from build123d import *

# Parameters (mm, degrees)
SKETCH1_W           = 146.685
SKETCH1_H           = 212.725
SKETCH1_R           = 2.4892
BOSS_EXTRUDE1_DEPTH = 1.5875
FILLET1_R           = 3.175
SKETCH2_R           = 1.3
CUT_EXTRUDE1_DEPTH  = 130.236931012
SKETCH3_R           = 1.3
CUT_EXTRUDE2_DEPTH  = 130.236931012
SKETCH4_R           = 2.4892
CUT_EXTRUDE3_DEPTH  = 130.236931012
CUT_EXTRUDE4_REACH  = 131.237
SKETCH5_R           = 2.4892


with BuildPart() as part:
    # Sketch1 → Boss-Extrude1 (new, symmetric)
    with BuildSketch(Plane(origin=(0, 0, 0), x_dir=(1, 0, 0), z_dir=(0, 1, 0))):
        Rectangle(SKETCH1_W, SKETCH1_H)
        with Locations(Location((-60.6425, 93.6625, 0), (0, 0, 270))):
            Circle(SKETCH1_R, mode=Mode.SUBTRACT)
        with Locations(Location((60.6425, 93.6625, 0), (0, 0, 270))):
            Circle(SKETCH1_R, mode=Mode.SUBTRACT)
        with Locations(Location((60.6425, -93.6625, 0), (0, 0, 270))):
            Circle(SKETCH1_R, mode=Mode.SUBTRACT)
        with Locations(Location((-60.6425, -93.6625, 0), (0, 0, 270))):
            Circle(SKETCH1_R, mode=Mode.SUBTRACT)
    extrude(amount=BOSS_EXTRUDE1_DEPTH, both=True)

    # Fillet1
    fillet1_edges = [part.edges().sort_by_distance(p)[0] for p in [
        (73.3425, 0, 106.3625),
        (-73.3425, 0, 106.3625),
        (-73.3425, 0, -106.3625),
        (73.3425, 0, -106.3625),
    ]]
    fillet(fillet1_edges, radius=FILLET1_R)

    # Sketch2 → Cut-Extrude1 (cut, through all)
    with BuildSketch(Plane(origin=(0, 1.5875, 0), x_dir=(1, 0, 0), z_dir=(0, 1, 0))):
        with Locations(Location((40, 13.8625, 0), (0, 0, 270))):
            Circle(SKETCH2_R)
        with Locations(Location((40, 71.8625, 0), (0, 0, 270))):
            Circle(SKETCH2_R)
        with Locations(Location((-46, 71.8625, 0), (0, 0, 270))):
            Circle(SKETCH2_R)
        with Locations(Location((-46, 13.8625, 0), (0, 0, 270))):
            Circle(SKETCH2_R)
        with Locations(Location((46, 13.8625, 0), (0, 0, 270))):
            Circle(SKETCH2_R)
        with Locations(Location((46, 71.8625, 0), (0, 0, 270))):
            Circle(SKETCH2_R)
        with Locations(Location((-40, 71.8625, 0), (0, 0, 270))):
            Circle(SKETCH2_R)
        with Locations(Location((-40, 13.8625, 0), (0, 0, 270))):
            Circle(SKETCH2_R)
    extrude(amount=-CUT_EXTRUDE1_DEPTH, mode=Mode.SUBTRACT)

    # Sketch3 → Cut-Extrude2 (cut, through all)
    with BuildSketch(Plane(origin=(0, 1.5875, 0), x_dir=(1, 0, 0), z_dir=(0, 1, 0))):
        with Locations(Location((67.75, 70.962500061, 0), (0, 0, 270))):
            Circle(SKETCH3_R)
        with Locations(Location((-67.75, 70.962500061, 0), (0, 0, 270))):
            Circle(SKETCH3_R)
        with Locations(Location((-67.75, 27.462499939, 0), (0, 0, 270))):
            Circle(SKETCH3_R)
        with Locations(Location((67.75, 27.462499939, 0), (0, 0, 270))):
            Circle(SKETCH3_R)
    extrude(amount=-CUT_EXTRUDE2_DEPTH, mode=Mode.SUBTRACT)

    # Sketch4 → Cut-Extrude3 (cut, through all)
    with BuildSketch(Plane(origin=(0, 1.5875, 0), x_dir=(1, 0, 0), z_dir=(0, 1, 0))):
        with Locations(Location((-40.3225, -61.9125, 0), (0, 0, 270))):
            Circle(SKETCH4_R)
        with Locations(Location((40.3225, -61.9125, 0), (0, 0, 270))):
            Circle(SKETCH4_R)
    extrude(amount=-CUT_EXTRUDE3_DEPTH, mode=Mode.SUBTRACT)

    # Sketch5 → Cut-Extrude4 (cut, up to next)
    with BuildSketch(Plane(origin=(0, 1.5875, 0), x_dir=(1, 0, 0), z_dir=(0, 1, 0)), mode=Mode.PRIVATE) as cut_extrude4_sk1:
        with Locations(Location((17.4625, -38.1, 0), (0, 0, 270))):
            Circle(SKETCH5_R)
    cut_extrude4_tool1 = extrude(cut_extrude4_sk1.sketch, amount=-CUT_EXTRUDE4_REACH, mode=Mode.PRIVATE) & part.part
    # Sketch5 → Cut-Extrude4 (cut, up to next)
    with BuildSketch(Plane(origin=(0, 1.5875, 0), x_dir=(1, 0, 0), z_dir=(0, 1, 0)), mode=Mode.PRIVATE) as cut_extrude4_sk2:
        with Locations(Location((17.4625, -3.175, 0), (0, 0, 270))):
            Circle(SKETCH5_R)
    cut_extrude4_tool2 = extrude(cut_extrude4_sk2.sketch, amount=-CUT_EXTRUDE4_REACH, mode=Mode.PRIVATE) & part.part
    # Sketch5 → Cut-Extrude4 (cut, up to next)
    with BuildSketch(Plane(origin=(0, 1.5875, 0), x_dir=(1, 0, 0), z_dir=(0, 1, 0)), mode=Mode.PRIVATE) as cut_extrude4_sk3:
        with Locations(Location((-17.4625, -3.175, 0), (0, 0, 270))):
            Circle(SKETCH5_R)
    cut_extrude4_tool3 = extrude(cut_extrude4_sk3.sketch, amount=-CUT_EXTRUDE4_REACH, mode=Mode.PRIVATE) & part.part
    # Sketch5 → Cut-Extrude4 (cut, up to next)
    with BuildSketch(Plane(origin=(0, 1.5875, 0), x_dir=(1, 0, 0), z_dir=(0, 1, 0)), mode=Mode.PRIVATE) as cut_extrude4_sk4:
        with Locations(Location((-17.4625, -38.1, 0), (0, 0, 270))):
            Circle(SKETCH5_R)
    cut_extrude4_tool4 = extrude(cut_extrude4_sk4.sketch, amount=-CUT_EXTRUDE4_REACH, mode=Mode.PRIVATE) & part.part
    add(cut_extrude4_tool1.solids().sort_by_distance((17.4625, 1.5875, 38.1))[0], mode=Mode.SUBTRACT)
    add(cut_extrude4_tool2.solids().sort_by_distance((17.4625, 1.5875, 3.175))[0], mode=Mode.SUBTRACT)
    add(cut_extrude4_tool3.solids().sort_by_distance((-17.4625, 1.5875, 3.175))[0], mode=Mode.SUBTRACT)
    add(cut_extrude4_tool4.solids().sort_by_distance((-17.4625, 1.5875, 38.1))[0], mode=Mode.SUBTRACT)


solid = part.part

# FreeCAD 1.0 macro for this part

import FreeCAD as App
import Part
import Sketcher
Q = App.Units.Quantity


def edges_at(feature, points):
    """Names of the edges that pass closest to the given points."""
    edges = feature.Shape.Edges
    near = lambda p: min(range(len(edges)), key=lambda i: edges[i].distToShape(Part.Vertex(*p))[0])
    return sorted({f"Edge{near(p) + 1}" for p in points})


def add_polygon(sketch, points):
    """Adds a closed chain of lines whose ends are joined by coincident constraints."""
    first, n = sketch.GeometryCount, len(points)
    for a, b in zip(points, points[1:] + points[:1]):
        sketch.addGeometry(Part.LineSegment(App.Vector(*a, 0), App.Vector(*b, 0)), False)
    for i in range(n):
        sketch.addConstraint(Sketcher.Constraint("Coincident", first + i, 2, first + (i + 1) % n, 1))

doc = App.newDocument("Part")
body = doc.addObject("PartDesign::Body", "Body")

# Sketch on XZ plane
sketch1 = body.newObject("Sketcher::SketchObject", "Sketch")
sketch1.AttachmentSupport = (doc.getObject("XZ_Plane"), [""])
sketch1.MapMode = "FlatFace"
add_polygon(sketch1, [(-73.3425, -106.3625), (-73.3425, 106.3625), (73.3425, 106.3625), (73.3425, -106.3625)])  # lines 0-3
sketch1.addGeometry(Part.Circle(App.Vector(-60.6425, 93.6625, 0), App.Vector(0, 0, 1), 2.4892), False)  # 4
sketch1.addGeometry(Part.Circle(App.Vector(60.6425, 93.6625, 0), App.Vector(0, 0, 1), 2.4892), False)  # 5
sketch1.addGeometry(Part.Circle(App.Vector(-60.6425, -93.6625, 0), App.Vector(0, 0, 1), 2.4892), False)  # 6
sketch1.addGeometry(Part.Circle(App.Vector(60.6425, -93.6625, 0), App.Vector(0, 0, 1), 2.4892), False)  # 7
sketch1.addConstraint([
    Sketcher.Constraint("Vertical", 0),
    Sketcher.Constraint("Horizontal", 1),
    Sketcher.Constraint("Vertical", 2),
    Sketcher.Constraint("Horizontal", 3),
    Sketcher.Constraint("Equal", 4, 5),
    Sketcher.Constraint("Equal", 5, 6),
    Sketcher.Constraint("Equal", 6, 7),
    Sketcher.Constraint("Symmetric", 5, 3, 6, 3, -1, 1),
    Sketcher.Constraint("Symmetric", 4, 3, 7, 3, -1, 1),
    Sketcher.Constraint("Symmetric", 0, 2, 2, 2, -1, 1),
    Sketcher.Constraint("Symmetric", 4, 3, 5, 3, -2),
    Sketcher.Constraint("Diameter", 4, Q("0.196 in")),
    Sketcher.Constraint("DistanceX", 0, 2, 4, 3, Q("0.5 in")),
    Sketcher.Constraint("DistanceY", 4, 3, 0, 2, Q("0.5 in")),
    Sketcher.Constraint("DistanceX", 1, 1, 1, 2, Q("5.775 in")),
    Sketcher.Constraint("DistanceY", 0, 1, 0, 2, Q("8.375 in")),
])
pad1 = body.newObject("PartDesign::Pad", "Pad")
pad1.Profile = sketch1
pad1.Length = Q("0.125 in")
pad1.Midplane = True
doc.recompute()

fillet = body.newObject("PartDesign::Fillet", "Fillet")
fillet.Base = (pad1, edges_at(pad1, [
    (73.343, 0, 106.362),
    (-73.343, 0, 106.362),
    (-73.343, 0, -106.362),
    (73.343, 0, -106.362),
]))
fillet.Radius = Q("0.125 in")

# Sketch on XZ plane
sketch2 = body.newObject("Sketcher::SketchObject", "Sketch001")
sketch2.AttachmentSupport = (doc.getObject("XZ_Plane"), [""])
sketch2.MapMode = "FlatFace"
sketch2.AttachmentOffset = App.Placement(App.Vector(0, 0, -0.0625 * 25.4), App.Rotation())
sketch2.addGeometry([
    Part.Circle(App.Vector(40, -13.8625, 0), App.Vector(0, 0, 1), 1.3),  # 0
    Part.Circle(App.Vector(40, -71.8625, 0), App.Vector(0, 0, 1), 1.3),  # 1
    Part.Circle(App.Vector(-46, -71.8625, 0), App.Vector(0, 0, 1), 1.3),  # 2
    Part.Circle(App.Vector(-46, -13.8625, 0), App.Vector(0, 0, 1), 1.3),  # 3
    Part.Circle(App.Vector(46, -13.8625, 0), App.Vector(0, 0, 1), 1.3),  # 4
    Part.Circle(App.Vector(46, -71.8625, 0), App.Vector(0, 0, 1), 1.3),  # 5
    Part.Circle(App.Vector(-40, -71.8625, 0), App.Vector(0, 0, 1), 1.3),  # 6
    Part.Circle(App.Vector(-40, -13.8625, 0), App.Vector(0, 0, 1), 1.3),  # 7
], False)
sketch2.addConstraint([
    Sketcher.Constraint("Equal", 0, 1),
    Sketcher.Constraint("Equal", 1, 2),
    Sketcher.Constraint("Equal", 2, 3),
    Sketcher.Constraint("Equal", 3, 4),
    Sketcher.Constraint("Equal", 4, 5),
    Sketcher.Constraint("Equal", 5, 6),
    Sketcher.Constraint("Equal", 6, 7),
    Sketcher.Constraint("Symmetric", 3, 3, 4, 3, -2),
    Sketcher.Constraint("Symmetric", 2, 3, 5, 3, -2),
    Sketcher.Constraint("Symmetric", 1, 3, 6, 3, -2),
    Sketcher.Constraint("Symmetric", 0, 3, 7, 3, -2),
    Sketcher.Constraint("Horizontal", 1, 3, 2, 3),
    Sketcher.Constraint("Horizontal", 0, 3, 3, 3),
    Sketcher.Constraint("Vertical", 0, 3, 1, 3),
    Sketcher.Constraint("Vertical", 2, 3, 3, 3),
    Sketcher.Constraint("Diameter", 0, Q("2.6 mm")),
    Sketcher.Constraint("DistanceX", -1, 1, 0, 3, Q("40 mm")),
    Sketcher.Constraint("DistanceY", 0, 3, -1, 1, Q("13.8625 mm")),
    Sketcher.Constraint("DistanceY", 1, 3, -1, 1, Q("71.8625 mm")),
    Sketcher.Constraint("DistanceX", 2, 3, -1, 1, Q("46 mm")),
])
pocket1 = body.newObject("PartDesign::Pocket", "Pocket")
pocket1.Profile = sketch2
pocket1.Type = "ThroughAll"
pocket1.Reversed = True

# Sketch on XZ plane
sketch3 = body.newObject("Sketcher::SketchObject", "Sketch002")
sketch3.AttachmentSupport = (doc.getObject("XZ_Plane"), [""])
sketch3.MapMode = "FlatFace"
sketch3.AttachmentOffset = App.Placement(App.Vector(0, 0, -0.0625 * 25.4), App.Rotation())
sketch3.addGeometry([
    Part.Circle(App.Vector(67.75, -70.9625, 0), App.Vector(0, 0, 1), 1.3),
    Part.Circle(App.Vector(-67.75, -70.9625, 0), App.Vector(0, 0, 1), 1.3),
    Part.Circle(App.Vector(-67.75, -27.4625, 0), App.Vector(0, 0, 1), 1.3),
    Part.Circle(App.Vector(67.75, -27.4625, 0), App.Vector(0, 0, 1), 1.3),
], False)
sketch3.addConstraint([
    Sketcher.Constraint("Equal", 0, 1),
    Sketcher.Constraint("Equal", 1, 2),
    Sketcher.Constraint("Equal", 2, 3),
    Sketcher.Constraint("Symmetric", 0, 3, 1, 3, -2),
    Sketcher.Constraint("Symmetric", 2, 3, 3, 3, -2),
    Sketcher.Constraint("Vertical", 1, 3, 2, 3),
    Sketcher.Constraint("Diameter", 0, Q("2.6 mm")),
    Sketcher.Constraint("DistanceX", -1, 1, 0, 3, Q("67.75 mm")),
    Sketcher.Constraint("DistanceY", 0, 3, -1, 1, Q("70.9625 mm")),
    Sketcher.Constraint("DistanceY", 2, 3, -1, 1, Q("27.4625 mm")),
])
pocket2 = body.newObject("PartDesign::Pocket", "Pocket001")
pocket2.Profile = sketch3
pocket2.Type = "ThroughAll"
pocket2.Reversed = True

# Sketch on XZ plane
sketch4 = body.newObject("Sketcher::SketchObject", "Sketch003")
sketch4.AttachmentSupport = (doc.getObject("XZ_Plane"), [""])
sketch4.MapMode = "FlatFace"
sketch4.AttachmentOffset = App.Placement(App.Vector(0, 0, -0.0625 * 25.4), App.Rotation())
sketch4.addGeometry([
    Part.Circle(App.Vector(-40.3225, 61.9125, 0), App.Vector(0, 0, 1), 2.4892),
    Part.Circle(App.Vector(40.3225, 61.9125, 0), App.Vector(0, 0, 1), 2.4892),
], False)
sketch4.addConstraint([
    Sketcher.Constraint("Equal", 0, 1),
    Sketcher.Constraint("Symmetric", 0, 3, 1, 3, -2),
    Sketcher.Constraint("Diameter", 0, Q("0.196 in")),
    Sketcher.Constraint("DistanceY", -1, 1, 0, 3, Q("2.4375 in")),
    Sketcher.Constraint("DistanceX", 0, 3, 1, 3, Q("3.175 in")),
])
pocket3 = body.newObject("PartDesign::Pocket", "Pocket002")
pocket3.Profile = sketch4
pocket3.Type = "ThroughAll"
pocket3.Reversed = True

# Sketch on XZ plane
sketch5 = body.newObject("Sketcher::SketchObject", "Sketch004")
sketch5.AttachmentSupport = (doc.getObject("XZ_Plane"), [""])
sketch5.MapMode = "FlatFace"
sketch5.AttachmentOffset = App.Placement(App.Vector(0, 0, -0.0625 * 25.4), App.Rotation())
sketch5.addGeometry(Part.Circle(App.Vector(17.4625, 38.1, 0), App.Vector(0, 0, 1), 2.4892), False)
sketch5.addConstraint([
    Sketcher.Constraint("Diameter", 0, Q("0.196 in")),
    Sketcher.Constraint("DistanceY", -1, 1, 0, 3, Q("1.5 in")),
    Sketcher.Constraint("DistanceX", -1, 1, 0, 3, Q("0.6875 in")),
])
pocket4 = body.newObject("PartDesign::Pocket", "Pocket003")
pocket4.Profile = sketch5
pocket4.Type = "UpToFirst"
pocket4.Reversed = True

# Sketch on XZ plane
sketch6 = body.newObject("Sketcher::SketchObject", "Sketch005")
sketch6.AttachmentSupport = (doc.getObject("XZ_Plane"), [""])
sketch6.MapMode = "FlatFace"
sketch6.AttachmentOffset = App.Placement(App.Vector(0, 0, -0.0625 * 25.4), App.Rotation())
sketch6.addGeometry(Part.Circle(App.Vector(17.4625, 3.175, 0), App.Vector(0, 0, 1), 2.4892), False)
sketch6.addConstraint([
    Sketcher.Constraint("Diameter", 0, Q("0.196 in")),
    Sketcher.Constraint("DistanceX", -1, 1, 0, 3, Q("0.6875 in")),
    Sketcher.Constraint("DistanceY", -1, 1, 0, 3, Q("0.125 in")),
])
pocket5 = body.newObject("PartDesign::Pocket", "Pocket004")
pocket5.Profile = sketch6
pocket5.Type = "UpToFirst"
pocket5.Reversed = True

# Sketch on XZ plane
sketch7 = body.newObject("Sketcher::SketchObject", "Sketch006")
sketch7.AttachmentSupport = (doc.getObject("XZ_Plane"), [""])
sketch7.MapMode = "FlatFace"
sketch7.AttachmentOffset = App.Placement(App.Vector(0, 0, -0.0625 * 25.4), App.Rotation())
sketch7.addGeometry(Part.Circle(App.Vector(-17.4625, 3.175, 0), App.Vector(0, 0, 1), 2.4892), False)
sketch7.addConstraint([
    Sketcher.Constraint("Diameter", 0, Q("0.196 in")),
    Sketcher.Constraint("DistanceX", 0, 3, -1, 1, Q("0.6875 in")),
    Sketcher.Constraint("DistanceY", -1, 1, 0, 3, Q("0.125 in")),
])
pocket6 = body.newObject("PartDesign::Pocket", "Pocket005")
pocket6.Profile = sketch7
pocket6.Type = "UpToFirst"
pocket6.Reversed = True

# Sketch on XZ plane
sketch8 = body.newObject("Sketcher::SketchObject", "Sketch007")
sketch8.AttachmentSupport = (doc.getObject("XZ_Plane"), [""])
sketch8.MapMode = "FlatFace"
sketch8.AttachmentOffset = App.Placement(App.Vector(0, 0, -0.0625 * 25.4), App.Rotation())
sketch8.addGeometry(Part.Circle(App.Vector(-17.4625, 38.1, 0), App.Vector(0, 0, 1), 2.4892), False)
sketch8.addConstraint([
    Sketcher.Constraint("Diameter", 0, Q("0.196 in")),
    Sketcher.Constraint("DistanceY", -1, 1, 0, 3, Q("1.5 in")),
    Sketcher.Constraint("DistanceX", 0, 3, -1, 1, Q("0.6875 in")),
])
pocket7 = body.newObject("PartDesign::Pocket", "Pocket006")
pocket7.Profile = sketch8
pocket7.Type = "UpToFirst"
pocket7.Reversed = True

doc.recompute()
